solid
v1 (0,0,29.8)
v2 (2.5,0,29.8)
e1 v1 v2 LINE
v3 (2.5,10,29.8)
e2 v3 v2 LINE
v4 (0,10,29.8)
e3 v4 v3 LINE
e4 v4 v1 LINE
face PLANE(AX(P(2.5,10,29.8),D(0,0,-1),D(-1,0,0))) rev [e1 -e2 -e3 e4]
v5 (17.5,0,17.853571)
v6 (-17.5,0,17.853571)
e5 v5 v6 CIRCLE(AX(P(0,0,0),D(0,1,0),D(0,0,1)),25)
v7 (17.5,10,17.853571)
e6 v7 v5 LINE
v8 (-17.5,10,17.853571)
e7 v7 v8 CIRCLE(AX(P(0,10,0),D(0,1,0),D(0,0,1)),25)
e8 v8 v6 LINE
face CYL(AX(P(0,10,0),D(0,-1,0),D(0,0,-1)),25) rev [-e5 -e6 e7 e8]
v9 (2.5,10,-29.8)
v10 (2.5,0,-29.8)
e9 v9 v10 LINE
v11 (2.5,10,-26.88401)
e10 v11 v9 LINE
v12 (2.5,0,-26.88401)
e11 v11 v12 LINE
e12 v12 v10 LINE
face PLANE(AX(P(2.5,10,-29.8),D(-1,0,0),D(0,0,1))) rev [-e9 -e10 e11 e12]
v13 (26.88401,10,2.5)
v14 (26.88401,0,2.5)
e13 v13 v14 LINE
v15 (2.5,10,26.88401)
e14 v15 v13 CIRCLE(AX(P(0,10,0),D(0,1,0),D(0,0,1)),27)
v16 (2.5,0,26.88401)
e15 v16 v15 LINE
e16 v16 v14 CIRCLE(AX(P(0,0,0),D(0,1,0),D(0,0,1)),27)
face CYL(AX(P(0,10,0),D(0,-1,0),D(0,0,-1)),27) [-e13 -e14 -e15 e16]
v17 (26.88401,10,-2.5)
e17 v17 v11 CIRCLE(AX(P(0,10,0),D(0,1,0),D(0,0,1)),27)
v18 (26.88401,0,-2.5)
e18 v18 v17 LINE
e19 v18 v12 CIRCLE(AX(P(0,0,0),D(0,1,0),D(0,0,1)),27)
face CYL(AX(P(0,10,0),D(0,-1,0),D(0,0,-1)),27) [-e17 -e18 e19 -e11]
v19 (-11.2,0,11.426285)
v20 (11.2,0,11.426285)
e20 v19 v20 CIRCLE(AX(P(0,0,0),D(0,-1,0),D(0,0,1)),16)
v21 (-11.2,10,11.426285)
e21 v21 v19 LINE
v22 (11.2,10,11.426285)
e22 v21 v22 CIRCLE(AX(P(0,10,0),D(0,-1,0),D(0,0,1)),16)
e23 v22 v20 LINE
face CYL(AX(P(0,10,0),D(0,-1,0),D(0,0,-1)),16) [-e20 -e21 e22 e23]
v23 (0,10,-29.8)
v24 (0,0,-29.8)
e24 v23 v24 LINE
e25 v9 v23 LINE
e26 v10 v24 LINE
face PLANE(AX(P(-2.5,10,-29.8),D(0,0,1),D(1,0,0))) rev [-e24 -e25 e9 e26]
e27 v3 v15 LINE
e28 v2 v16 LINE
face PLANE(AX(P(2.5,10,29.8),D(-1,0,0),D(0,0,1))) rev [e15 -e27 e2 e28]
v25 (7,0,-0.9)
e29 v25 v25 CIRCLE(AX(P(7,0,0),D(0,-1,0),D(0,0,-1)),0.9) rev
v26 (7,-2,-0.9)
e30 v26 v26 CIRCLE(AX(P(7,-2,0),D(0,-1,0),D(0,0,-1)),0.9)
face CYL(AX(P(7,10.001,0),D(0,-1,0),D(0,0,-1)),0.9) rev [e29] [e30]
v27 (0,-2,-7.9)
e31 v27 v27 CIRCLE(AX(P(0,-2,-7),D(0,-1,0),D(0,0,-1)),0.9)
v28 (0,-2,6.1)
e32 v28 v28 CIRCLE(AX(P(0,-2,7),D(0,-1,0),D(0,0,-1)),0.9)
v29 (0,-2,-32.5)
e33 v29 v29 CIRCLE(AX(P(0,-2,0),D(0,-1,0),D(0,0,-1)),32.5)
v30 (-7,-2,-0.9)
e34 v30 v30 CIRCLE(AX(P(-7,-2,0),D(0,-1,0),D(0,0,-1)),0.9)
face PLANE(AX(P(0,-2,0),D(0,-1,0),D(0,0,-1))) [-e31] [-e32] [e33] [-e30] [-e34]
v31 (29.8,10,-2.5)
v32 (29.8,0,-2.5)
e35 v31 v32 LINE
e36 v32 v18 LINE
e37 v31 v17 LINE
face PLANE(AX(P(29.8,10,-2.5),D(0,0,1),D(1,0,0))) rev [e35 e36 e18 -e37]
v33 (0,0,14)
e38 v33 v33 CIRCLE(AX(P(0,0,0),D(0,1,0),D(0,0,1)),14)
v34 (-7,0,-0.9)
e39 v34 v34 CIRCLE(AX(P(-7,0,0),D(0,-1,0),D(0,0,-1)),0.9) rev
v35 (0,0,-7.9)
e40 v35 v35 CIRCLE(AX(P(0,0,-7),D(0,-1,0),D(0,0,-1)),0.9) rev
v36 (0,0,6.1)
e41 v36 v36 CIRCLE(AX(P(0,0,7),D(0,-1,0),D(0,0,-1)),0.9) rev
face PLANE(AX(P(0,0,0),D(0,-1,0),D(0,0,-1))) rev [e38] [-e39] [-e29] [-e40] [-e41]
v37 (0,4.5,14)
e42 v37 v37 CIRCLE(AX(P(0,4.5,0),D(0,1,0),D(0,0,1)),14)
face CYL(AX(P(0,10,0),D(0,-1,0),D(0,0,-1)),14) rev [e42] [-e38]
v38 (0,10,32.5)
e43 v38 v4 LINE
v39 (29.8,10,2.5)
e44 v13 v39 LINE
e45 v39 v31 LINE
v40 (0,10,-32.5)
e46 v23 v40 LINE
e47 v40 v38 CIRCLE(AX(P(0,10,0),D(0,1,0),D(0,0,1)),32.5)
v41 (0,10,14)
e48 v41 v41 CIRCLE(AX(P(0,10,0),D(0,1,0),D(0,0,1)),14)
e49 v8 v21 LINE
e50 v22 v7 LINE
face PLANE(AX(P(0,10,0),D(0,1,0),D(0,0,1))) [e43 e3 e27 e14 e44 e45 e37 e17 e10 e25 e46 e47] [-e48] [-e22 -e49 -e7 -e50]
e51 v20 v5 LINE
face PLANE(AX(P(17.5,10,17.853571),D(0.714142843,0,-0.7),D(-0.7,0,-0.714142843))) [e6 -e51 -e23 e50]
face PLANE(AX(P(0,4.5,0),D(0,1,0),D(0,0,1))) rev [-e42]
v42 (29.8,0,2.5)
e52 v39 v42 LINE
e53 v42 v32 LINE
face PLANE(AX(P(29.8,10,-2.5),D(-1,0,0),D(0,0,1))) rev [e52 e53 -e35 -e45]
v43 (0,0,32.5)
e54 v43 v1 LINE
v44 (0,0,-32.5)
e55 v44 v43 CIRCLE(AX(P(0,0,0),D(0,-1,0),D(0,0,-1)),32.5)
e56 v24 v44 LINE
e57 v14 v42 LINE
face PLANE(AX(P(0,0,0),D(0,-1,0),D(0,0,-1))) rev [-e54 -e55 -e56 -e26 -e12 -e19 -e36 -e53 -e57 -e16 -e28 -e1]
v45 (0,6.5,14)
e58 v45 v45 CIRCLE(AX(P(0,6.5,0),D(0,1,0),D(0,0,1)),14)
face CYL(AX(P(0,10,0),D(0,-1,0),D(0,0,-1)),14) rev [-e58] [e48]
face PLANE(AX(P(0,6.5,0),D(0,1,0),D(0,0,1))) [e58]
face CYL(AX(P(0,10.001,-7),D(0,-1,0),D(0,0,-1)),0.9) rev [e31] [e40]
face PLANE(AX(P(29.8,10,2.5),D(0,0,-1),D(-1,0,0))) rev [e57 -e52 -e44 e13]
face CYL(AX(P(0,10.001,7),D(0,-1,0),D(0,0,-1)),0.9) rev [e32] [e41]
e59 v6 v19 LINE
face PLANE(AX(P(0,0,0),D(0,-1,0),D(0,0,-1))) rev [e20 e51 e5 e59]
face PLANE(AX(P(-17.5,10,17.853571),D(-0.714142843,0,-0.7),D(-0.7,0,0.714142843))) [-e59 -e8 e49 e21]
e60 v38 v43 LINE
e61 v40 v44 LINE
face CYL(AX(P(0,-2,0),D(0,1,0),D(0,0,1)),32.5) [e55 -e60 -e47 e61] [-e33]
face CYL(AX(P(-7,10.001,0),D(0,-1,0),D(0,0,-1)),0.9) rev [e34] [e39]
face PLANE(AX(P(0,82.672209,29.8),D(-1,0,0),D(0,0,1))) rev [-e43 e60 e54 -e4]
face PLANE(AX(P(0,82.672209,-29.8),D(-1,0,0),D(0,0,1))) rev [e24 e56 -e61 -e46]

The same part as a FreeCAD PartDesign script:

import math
import FreeCAD as App
import Part
import Sketcher


def add_polygon(sketch, points):
    """Adds a closed chain of lines whose ends are joined by coincident constraints."""
    first, n = sketch.GeometryCount, len(points)
    for a, b in zip(points, points[1:] + points[:1]):
        sketch.addGeometry(Part.LineSegment(App.Vector(*a, 0), App.Vector(*b, 0)), False)
    for i in range(n):
        sketch.addConstraint(Sketcher.Constraint("Coincident", first + i, 2, first + (i + 1) % n, 1))

doc = App.newDocument("Part")
body = doc.addObject("PartDesign::Body", "Body")

# Sketch on XZ plane
sketch1 = doc.addObject("Sketcher::SketchObject", "Sketch")
body.addObject(sketch1)
sketch1.AttachmentSupport = (doc.XZ_Plane, [""])
sketch1.MapMode = "FlatFace"
sketch1.addGeometry([
    Part.Circle(App.Vector(0, 0, 0), App.Vector(0, 0, 1), 27),  # 0
    Part.LineSegment(App.Vector(-11, 11, 0), App.Vector(-18, 18, 0)),  # 1
    Part.ArcOfCircle(Part.Circle(App.Vector(0, 0, 0), App.Vector(0, 0, 1), 25), math.radians(134), math.radians(406)),  # 2
    Part.LineSegment(App.Vector(18, 18, 0), App.Vector(11, 11, 0)),  # 3
    Part.ArcOfCircle(Part.Circle(App.Vector(0, 0, 0), App.Vector(0, 0, 1), 16), math.radians(134), math.radians(406)),  # 4
    Part.Circle(App.Vector(0, 0, 0), App.Vector(0, 0, 1), 14),  # 5
], False)
sketch1.addConstraint([
    Sketcher.Constraint("Coincident", 1, 2, 2, 1),
    Sketcher.Constraint("Coincident", 2, 2, 3, 1),
    Sketcher.Constraint("Coincident", 3, 2, 4, 2),
    Sketcher.Constraint("Coincident", 4, 1, 1, 1),
    Sketcher.Constraint("Coincident", 0, 3, -1, 1),
    Sketcher.Constraint("Coincident", 2, 3, -1, 1),
    Sketcher.Constraint("Coincident", 4, 3, -1, 1),
    Sketcher.Constraint("Coincident", 5, 3, -1, 1),
    Sketcher.Constraint("Horizontal", 1, 2, 2, 2),
    Sketcher.Constraint("Horizontal", 3, 2, 4, 1),
    Sketcher.Constraint("Diameter", 0, 54.0),
    Sketcher.Constraint("Diameter", 5, 28.0),
    Sketcher.Constraint("Radius", 2, 25.0),
    Sketcher.Constraint("Radius", 4, 16.0),
    Sketcher.Constraint("DistanceX", 1, 2, 2, 2, 35.0),
    Sketcher.Constraint("DistanceX", -1, 1, 3, 2, 11.2),
])
pad1 = doc.addObject("PartDesign::Pad", "Pad")
body.addObject(pad1)
pad1.Profile = sketch1
pad1.Length = 10
pad1.Reversed = True

# Sketch on XZ plane
sketch2 = doc.addObject("Sketcher::SketchObject", "Sketch001")
body.addObject(sketch2)
sketch2.AttachmentSupport = (doc.XZ_Plane, [""])
sketch2.MapMode = "FlatFace"
sketch2.addGeometry(Part.Circle(App.Vector(0, 0, 0), App.Vector(0, 0, 1), 32), False)
sketch2.addConstraint([
    Sketcher.Constraint("Coincident", 0, 3, -1, 1),
    Sketcher.Constraint("Diameter", 0, 65.0),
])
pad2 = doc.addObject("PartDesign::Pad", "Pad001")
body.addObject(pad2)
pad2.Profile = sketch2
pad2.Length = 2

# Sketch on XZ plane
sketch3 = doc.addObject("Sketcher::SketchObject", "Sketch002")
body.addObject(sketch3)
sketch3.AttachmentSupport = (doc.XZ_Plane, [""])
sketch3.MapMode = "FlatFace"
add_polygon(sketch3, [(-2.5, -29.8), (-2.5, -25.4), (2.5, -25.4), (2.5, -29.8)])  # lines 0-3
add_polygon(sketch3, [(25.4, -2.5), (25.4, 2.5), (29.8, 2.5), (29.8, -2.5)])  # lines 4-7
add_polygon(sketch3, [(-2.5, 25.4), (-2.5, 29.8), (2.5, 29.8), (2.5, 25.4)])  # lines 8-11
add_polygon(sketch3, [(-29.8, -2.5), (-29.8, 2.5), (-25.4, 2.5), (-25.4, -2.5)])  # lines 12-15
sketch3.addConstraint([
    Sketcher.Constraint("Vertical", 0),
    Sketcher.Constraint("Horizontal", 1),
    Sketcher.Constraint("Vertical", 2),
    Sketcher.Constraint("Horizontal", 3),
    Sketcher.Constraint("Vertical", 4),
    Sketcher.Constraint("Horizontal", 5),
    Sketcher.Constraint("Vertical", 6),
    Sketcher.Constraint("Horizontal", 7),
    Sketcher.Constraint("Vertical", 8),
    Sketcher.Constraint("Horizontal", 9),
    Sketcher.Constraint("Vertical", 10),
    Sketcher.Constraint("Horizontal", 11),
    Sketcher.Constraint("Vertical", 12),
    Sketcher.Constraint("Horizontal", 13),
    Sketcher.Constraint("Vertical", 14),
    Sketcher.Constraint("Horizontal", 15),
    Sketcher.Constraint("Symmetric", 2, 2, 8, 2, -1, 1),
    Sketcher.Constraint("Symmetric", 0, 2, 10, 2, -1, 1),
    Sketcher.Constraint("Symmetric", 6, 2, 12, 2, -1, 1),
    Sketcher.Constraint("Symmetric", 4, 2, 14, 2, -1, 1),
    Sketcher.Constraint("Horizontal", 5, 2, 12, 2),
    Sketcher.Constraint("Vertical", 3, 2, 8, 2),
    Sketcher.Constraint("Equal", 15, 0),
    Sketcher.Constraint("Equal", 11, 4),
    Sketcher.Constraint("DistanceX", 1, 1, 1, 2, 5.0),
    Sketcher.Constraint("DistanceY", 2, 2, -1, 1, 29.8),
    Sketcher.Constraint("DistanceX", -1, 1, 5, 2, 29.8),
    Sketcher.Constraint("DistanceX", 5, 1, 5, 2, 4.396773),
])
pad3 = doc.addObject("PartDesign::Pad", "Pad002")
body.addObject(pad3)
pad3.Profile = sketch3
pad3.Length = 10
pad3.Reversed = True

# Sketch on XZ plane
sketch4 = doc.addObject("Sketcher::SketchObject", "Sketch003")
body.addObject(sketch4)
sketch4.AttachmentSupport = (doc.XZ_Plane, [""])
sketch4.MapMode = "FlatFace"
sketch4.AttachmentOffset = App.Placement(App.Vector(0, 0, 2), App.Rotation())
sketch4.addGeometry(Part.Circle(App.Vector(0, -7, 0), App.Vector(0, 0, 1), 0.9), False)
sketch4.addConstraint([
    Sketcher.Constraint("PointOnObject", 0, 3, -2),
    Sketcher.Constraint("Diameter", 0, 1.8),
    Sketcher.Constraint("DistanceY", 0, 3, -1, 1, 7.0),
])
pocket1 = doc.addObject("PartDesign::Pocket", "Pocket")
body.addObject(pocket1)
pocket1.Profile = sketch4
pocket1.Type = "UpToFirst"

# Sketch on XZ plane
sketch5 = doc.addObject("Sketcher::SketchObject", "Sketch004")
body.addObject(sketch5)
sketch5.AttachmentSupport = (doc.XZ_Plane, [""])
sketch5.MapMode = "FlatFace"
sketch5.AttachmentOffset = App.Placement(App.Vector(0, 0, 2), App.Rotation())
sketch5.addGeometry(Part.Circle(App.Vector(-7, 0, 0), App.Vector(0, 0, 1), 0.9), False)
sketch5.addConstraint([
    Sketcher.Constraint("PointOnObject", 0, 3, -1),
    Sketcher.Constraint("Diameter", 0, 1.8),
    Sketcher.Constraint("DistanceX", 0, 3, -1, 1, 7.0),
])
pocket2 = doc.addObject("PartDesign::Pocket", "Pocket001")
body.addObject(pocket2)
pocket2.Profile = sketch5
pocket2.Type = "UpToFirst"

# Sketch on XZ plane
sketch6 = doc.addObject("Sketcher::SketchObject", "Sketch005")
body.addObject(sketch6)
sketch6.AttachmentSupport = (doc.XZ_Plane, [""])
sketch6.MapMode = "FlatFace"
sketch6.AttachmentOffset = App.Placement(App.Vector(0, 0, 2), App.Rotation())
sketch6.addGeometry(Part.Circle(App.Vector(0, 7, 0), App.Vector(0, 0, 1), 0.9), False)
sketch6.addConstraint([
    Sketcher.Constraint("PointOnObject", 0, 3, -2),
    Sketcher.Constraint("Diameter", 0, 1.8),
    Sketcher.Constraint("DistanceY", -1, 1, 0, 3, 7.0),
])
pocket3 = doc.addObject("PartDesign::Pocket", "Pocket002")
body.addObject(pocket3)
pocket3.Profile = sketch6
pocket3.Type = "UpToFirst"

# Sketch on XZ plane
sketch7 = doc.addObject("Sketcher::SketchObject", "Sketch006")
body.addObject(sketch7)
sketch7.AttachmentSupport = (doc.XZ_Plane, [""])
sketch7.MapMode = "FlatFace"
sketch7.AttachmentOffset = App.Placement(App.Vector(0, 0, 2), App.Rotation())
sketch7.addGeometry(Part.Circle(App.Vector(7, 0, 0), App.Vector(0, 0, 1), 0.9), False)
sketch7.addConstraint([
    Sketcher.Constraint("PointOnObject", 0, 3, -1),
    Sketcher.Constraint("Diameter", 0, 1.8),
    Sketcher.Constraint("DistanceX", -1, 1, 0, 3, 7.0),
])
pocket4 = doc.addObject("PartDesign::Pocket", "Pocket003")
body.addObject(pocket4)
pocket4.Profile = sketch7
pocket4.Type = "UpToFirst"

# Sketch on XZ plane
sketch8 = doc.addObject("Sketcher::SketchObject", "Sketch007")
body.addObject(sketch8)
sketch8.AttachmentSupport = (doc.XZ_Plane, [""])
sketch8.MapMode = "FlatFace"
sketch8.addGeometry([
    Part.LineSegment(App.Vector(0, -29.8, 0), App.Vector(0, -32.5, 0)),  # 0
    Part.ArcOfCircle(Part.Circle(App.Vector(0, 0, 0), App.Vector(0, 0, 1), 32.5), math.radians(90), math.radians(270)),  # 1
    Part.LineSegment(App.Vector(0, 32.5, 0), App.Vector(0, 29.8, 0)),  # 2
    Part.LineSegment(App.Vector(0, 29.8, 0), App.Vector(-2.5, 29.8, 0)),  # 3
    Part.LineSegment(App.Vector(-2.5, 29.8, 0), App.Vector(-2.5, 26.9, 0)),  # 4
    Part.ArcOfCircle(Part.Circle(App.Vector(0, 0, 0), App.Vector(0, 0, 1), 27), math.radians(95), math.radians(175)),  # 5
    Part.LineSegment(App.Vector(-26.9, 2.5, 0), App.Vector(-29.8, 2.5, 0)),  # 6
    Part.LineSegment(App.Vector(-29.8, 2.5, 0), App.Vector(-29.8, -2.5, 0)),  # 7
    Part.LineSegment(App.Vector(-29.8, -2.5, 0), App.Vector(-26.9, -2.5, 0)),  # 8
    Part.ArcOfCircle(Part.Circle(App.Vector(0, 0, 0), App.Vector(0, 0, 1), 27), math.radians(-175), math.radians(-95)),  # 9
    Part.LineSegment(App.Vector(-2.5, -26.9, 0), App.Vector(-2.5, -29.8, 0)),  # 10
    Part.LineSegment(App.Vector(-2.5, -29.8, 0), App.Vector(0, -29.8, 0)),  # 11
], False)
sketch8.addConstraint([
    Sketcher.Constraint("Coincident", 0, 2, 1, 2),
    Sketcher.Constraint("Coincident", 1, 1, 2, 1),
    Sketcher.Constraint("Coincident", 2, 2, 3, 1),
    Sketcher.Constraint("Coincident", 3, 2, 4, 1),
    Sketcher.Constraint("Coincident", 4, 2, 5, 1),
    Sketcher.Constraint("Coincident", 5, 2, 6, 1),
    Sketcher.Constraint("Coincident", 6, 2, 7, 1),
    Sketcher.Constraint("Coincident", 7, 2, 8, 1),
    Sketcher.Constraint("Coincident", 8, 2, 9, 1),
    Sketcher.Constraint("Coincident", 9, 2, 10, 1),
    Sketcher.Constraint("Coincident", 10, 2, 11, 1),
    Sketcher.Constraint("Coincident", 11, 2, 0, 1),
    Sketcher.Constraint("Vertical", 0),
    Sketcher.Constraint("Vertical", 2),
    Sketcher.Constraint("Horizontal", 3),
    Sketcher.Constraint("Vertical", 4),
    Sketcher.Constraint("Horizontal", 6),
    Sketcher.Constraint("Vertical", 7),
    Sketcher.Constraint("Horizontal", 8),
    Sketcher.Constraint("Vertical", 10),
    Sketcher.Constraint("Horizontal", 11),
    Sketcher.Constraint("Coincident", 1, 3, -1, 1),
    Sketcher.Constraint("Coincident", 5, 3, -1, 1),
    Sketcher.Constraint("Coincident", 9, 3, -1, 1),
    Sketcher.Constraint("Equal", 5, 9),
    Sketcher.Constraint("Symmetric", 2, 2, 11, 2, -1, 1),
    Sketcher.Constraint("PointOnObject", 0, 2, -2),
    Sketcher.Constraint("Vertical", 5, 2, 8, 2),
    Sketcher.Constraint("Vertical", 4, 2, 9, 2),
    Sketcher.Constraint("Equal", 8, 4),
    Sketcher.Constraint("Radius", 5, 27.0),
    Sketcher.Constraint("Radius", 1, 32.5),
    Sketcher.Constraint("DistanceY", 7, 2, 7, 1, 5.0),
    Sketcher.Constraint("DistanceX", 3, 2, 3, 1, 2.5),
    Sketcher.Constraint("DistanceY", 0, 2, 0, 1, 2.7),
])
pad4 = doc.addObject("PartDesign::Pad", "Pad003")
body.addObject(pad4)
pad4.Profile = sketch8
pad4.Length = 10
pad4.Reversed = True

# Sketch on XZ plane
sketch9 = doc.addObject("Sketcher::SketchObject", "Sketch008")
body.addObject(sketch9)
sketch9.AttachmentSupport = (doc.XZ_Plane, [""])
sketch9.MapMode = "FlatFace"
sketch9.AttachmentOffset = App.Placement(App.Vector(0, 0, -4.5), App.Rotation())
sketch9.addGeometry(Part.Circle(App.Vector(0, 0, 0), App.Vector(0, 0, 1), 14), False)
sketch9.addConstraint([
    Sketcher.Constraint("Coincident", 0, 3, -1, 1),
    Sketcher.Constraint("Diameter", 0, 28.0),
])
pad5 = doc.addObject("PartDesign::Pad", "Pad004")
body.addObject(pad5)
pad5.Profile = sketch9
pad5.Length = 2
pad5.Reversed = True

doc.recompute()
